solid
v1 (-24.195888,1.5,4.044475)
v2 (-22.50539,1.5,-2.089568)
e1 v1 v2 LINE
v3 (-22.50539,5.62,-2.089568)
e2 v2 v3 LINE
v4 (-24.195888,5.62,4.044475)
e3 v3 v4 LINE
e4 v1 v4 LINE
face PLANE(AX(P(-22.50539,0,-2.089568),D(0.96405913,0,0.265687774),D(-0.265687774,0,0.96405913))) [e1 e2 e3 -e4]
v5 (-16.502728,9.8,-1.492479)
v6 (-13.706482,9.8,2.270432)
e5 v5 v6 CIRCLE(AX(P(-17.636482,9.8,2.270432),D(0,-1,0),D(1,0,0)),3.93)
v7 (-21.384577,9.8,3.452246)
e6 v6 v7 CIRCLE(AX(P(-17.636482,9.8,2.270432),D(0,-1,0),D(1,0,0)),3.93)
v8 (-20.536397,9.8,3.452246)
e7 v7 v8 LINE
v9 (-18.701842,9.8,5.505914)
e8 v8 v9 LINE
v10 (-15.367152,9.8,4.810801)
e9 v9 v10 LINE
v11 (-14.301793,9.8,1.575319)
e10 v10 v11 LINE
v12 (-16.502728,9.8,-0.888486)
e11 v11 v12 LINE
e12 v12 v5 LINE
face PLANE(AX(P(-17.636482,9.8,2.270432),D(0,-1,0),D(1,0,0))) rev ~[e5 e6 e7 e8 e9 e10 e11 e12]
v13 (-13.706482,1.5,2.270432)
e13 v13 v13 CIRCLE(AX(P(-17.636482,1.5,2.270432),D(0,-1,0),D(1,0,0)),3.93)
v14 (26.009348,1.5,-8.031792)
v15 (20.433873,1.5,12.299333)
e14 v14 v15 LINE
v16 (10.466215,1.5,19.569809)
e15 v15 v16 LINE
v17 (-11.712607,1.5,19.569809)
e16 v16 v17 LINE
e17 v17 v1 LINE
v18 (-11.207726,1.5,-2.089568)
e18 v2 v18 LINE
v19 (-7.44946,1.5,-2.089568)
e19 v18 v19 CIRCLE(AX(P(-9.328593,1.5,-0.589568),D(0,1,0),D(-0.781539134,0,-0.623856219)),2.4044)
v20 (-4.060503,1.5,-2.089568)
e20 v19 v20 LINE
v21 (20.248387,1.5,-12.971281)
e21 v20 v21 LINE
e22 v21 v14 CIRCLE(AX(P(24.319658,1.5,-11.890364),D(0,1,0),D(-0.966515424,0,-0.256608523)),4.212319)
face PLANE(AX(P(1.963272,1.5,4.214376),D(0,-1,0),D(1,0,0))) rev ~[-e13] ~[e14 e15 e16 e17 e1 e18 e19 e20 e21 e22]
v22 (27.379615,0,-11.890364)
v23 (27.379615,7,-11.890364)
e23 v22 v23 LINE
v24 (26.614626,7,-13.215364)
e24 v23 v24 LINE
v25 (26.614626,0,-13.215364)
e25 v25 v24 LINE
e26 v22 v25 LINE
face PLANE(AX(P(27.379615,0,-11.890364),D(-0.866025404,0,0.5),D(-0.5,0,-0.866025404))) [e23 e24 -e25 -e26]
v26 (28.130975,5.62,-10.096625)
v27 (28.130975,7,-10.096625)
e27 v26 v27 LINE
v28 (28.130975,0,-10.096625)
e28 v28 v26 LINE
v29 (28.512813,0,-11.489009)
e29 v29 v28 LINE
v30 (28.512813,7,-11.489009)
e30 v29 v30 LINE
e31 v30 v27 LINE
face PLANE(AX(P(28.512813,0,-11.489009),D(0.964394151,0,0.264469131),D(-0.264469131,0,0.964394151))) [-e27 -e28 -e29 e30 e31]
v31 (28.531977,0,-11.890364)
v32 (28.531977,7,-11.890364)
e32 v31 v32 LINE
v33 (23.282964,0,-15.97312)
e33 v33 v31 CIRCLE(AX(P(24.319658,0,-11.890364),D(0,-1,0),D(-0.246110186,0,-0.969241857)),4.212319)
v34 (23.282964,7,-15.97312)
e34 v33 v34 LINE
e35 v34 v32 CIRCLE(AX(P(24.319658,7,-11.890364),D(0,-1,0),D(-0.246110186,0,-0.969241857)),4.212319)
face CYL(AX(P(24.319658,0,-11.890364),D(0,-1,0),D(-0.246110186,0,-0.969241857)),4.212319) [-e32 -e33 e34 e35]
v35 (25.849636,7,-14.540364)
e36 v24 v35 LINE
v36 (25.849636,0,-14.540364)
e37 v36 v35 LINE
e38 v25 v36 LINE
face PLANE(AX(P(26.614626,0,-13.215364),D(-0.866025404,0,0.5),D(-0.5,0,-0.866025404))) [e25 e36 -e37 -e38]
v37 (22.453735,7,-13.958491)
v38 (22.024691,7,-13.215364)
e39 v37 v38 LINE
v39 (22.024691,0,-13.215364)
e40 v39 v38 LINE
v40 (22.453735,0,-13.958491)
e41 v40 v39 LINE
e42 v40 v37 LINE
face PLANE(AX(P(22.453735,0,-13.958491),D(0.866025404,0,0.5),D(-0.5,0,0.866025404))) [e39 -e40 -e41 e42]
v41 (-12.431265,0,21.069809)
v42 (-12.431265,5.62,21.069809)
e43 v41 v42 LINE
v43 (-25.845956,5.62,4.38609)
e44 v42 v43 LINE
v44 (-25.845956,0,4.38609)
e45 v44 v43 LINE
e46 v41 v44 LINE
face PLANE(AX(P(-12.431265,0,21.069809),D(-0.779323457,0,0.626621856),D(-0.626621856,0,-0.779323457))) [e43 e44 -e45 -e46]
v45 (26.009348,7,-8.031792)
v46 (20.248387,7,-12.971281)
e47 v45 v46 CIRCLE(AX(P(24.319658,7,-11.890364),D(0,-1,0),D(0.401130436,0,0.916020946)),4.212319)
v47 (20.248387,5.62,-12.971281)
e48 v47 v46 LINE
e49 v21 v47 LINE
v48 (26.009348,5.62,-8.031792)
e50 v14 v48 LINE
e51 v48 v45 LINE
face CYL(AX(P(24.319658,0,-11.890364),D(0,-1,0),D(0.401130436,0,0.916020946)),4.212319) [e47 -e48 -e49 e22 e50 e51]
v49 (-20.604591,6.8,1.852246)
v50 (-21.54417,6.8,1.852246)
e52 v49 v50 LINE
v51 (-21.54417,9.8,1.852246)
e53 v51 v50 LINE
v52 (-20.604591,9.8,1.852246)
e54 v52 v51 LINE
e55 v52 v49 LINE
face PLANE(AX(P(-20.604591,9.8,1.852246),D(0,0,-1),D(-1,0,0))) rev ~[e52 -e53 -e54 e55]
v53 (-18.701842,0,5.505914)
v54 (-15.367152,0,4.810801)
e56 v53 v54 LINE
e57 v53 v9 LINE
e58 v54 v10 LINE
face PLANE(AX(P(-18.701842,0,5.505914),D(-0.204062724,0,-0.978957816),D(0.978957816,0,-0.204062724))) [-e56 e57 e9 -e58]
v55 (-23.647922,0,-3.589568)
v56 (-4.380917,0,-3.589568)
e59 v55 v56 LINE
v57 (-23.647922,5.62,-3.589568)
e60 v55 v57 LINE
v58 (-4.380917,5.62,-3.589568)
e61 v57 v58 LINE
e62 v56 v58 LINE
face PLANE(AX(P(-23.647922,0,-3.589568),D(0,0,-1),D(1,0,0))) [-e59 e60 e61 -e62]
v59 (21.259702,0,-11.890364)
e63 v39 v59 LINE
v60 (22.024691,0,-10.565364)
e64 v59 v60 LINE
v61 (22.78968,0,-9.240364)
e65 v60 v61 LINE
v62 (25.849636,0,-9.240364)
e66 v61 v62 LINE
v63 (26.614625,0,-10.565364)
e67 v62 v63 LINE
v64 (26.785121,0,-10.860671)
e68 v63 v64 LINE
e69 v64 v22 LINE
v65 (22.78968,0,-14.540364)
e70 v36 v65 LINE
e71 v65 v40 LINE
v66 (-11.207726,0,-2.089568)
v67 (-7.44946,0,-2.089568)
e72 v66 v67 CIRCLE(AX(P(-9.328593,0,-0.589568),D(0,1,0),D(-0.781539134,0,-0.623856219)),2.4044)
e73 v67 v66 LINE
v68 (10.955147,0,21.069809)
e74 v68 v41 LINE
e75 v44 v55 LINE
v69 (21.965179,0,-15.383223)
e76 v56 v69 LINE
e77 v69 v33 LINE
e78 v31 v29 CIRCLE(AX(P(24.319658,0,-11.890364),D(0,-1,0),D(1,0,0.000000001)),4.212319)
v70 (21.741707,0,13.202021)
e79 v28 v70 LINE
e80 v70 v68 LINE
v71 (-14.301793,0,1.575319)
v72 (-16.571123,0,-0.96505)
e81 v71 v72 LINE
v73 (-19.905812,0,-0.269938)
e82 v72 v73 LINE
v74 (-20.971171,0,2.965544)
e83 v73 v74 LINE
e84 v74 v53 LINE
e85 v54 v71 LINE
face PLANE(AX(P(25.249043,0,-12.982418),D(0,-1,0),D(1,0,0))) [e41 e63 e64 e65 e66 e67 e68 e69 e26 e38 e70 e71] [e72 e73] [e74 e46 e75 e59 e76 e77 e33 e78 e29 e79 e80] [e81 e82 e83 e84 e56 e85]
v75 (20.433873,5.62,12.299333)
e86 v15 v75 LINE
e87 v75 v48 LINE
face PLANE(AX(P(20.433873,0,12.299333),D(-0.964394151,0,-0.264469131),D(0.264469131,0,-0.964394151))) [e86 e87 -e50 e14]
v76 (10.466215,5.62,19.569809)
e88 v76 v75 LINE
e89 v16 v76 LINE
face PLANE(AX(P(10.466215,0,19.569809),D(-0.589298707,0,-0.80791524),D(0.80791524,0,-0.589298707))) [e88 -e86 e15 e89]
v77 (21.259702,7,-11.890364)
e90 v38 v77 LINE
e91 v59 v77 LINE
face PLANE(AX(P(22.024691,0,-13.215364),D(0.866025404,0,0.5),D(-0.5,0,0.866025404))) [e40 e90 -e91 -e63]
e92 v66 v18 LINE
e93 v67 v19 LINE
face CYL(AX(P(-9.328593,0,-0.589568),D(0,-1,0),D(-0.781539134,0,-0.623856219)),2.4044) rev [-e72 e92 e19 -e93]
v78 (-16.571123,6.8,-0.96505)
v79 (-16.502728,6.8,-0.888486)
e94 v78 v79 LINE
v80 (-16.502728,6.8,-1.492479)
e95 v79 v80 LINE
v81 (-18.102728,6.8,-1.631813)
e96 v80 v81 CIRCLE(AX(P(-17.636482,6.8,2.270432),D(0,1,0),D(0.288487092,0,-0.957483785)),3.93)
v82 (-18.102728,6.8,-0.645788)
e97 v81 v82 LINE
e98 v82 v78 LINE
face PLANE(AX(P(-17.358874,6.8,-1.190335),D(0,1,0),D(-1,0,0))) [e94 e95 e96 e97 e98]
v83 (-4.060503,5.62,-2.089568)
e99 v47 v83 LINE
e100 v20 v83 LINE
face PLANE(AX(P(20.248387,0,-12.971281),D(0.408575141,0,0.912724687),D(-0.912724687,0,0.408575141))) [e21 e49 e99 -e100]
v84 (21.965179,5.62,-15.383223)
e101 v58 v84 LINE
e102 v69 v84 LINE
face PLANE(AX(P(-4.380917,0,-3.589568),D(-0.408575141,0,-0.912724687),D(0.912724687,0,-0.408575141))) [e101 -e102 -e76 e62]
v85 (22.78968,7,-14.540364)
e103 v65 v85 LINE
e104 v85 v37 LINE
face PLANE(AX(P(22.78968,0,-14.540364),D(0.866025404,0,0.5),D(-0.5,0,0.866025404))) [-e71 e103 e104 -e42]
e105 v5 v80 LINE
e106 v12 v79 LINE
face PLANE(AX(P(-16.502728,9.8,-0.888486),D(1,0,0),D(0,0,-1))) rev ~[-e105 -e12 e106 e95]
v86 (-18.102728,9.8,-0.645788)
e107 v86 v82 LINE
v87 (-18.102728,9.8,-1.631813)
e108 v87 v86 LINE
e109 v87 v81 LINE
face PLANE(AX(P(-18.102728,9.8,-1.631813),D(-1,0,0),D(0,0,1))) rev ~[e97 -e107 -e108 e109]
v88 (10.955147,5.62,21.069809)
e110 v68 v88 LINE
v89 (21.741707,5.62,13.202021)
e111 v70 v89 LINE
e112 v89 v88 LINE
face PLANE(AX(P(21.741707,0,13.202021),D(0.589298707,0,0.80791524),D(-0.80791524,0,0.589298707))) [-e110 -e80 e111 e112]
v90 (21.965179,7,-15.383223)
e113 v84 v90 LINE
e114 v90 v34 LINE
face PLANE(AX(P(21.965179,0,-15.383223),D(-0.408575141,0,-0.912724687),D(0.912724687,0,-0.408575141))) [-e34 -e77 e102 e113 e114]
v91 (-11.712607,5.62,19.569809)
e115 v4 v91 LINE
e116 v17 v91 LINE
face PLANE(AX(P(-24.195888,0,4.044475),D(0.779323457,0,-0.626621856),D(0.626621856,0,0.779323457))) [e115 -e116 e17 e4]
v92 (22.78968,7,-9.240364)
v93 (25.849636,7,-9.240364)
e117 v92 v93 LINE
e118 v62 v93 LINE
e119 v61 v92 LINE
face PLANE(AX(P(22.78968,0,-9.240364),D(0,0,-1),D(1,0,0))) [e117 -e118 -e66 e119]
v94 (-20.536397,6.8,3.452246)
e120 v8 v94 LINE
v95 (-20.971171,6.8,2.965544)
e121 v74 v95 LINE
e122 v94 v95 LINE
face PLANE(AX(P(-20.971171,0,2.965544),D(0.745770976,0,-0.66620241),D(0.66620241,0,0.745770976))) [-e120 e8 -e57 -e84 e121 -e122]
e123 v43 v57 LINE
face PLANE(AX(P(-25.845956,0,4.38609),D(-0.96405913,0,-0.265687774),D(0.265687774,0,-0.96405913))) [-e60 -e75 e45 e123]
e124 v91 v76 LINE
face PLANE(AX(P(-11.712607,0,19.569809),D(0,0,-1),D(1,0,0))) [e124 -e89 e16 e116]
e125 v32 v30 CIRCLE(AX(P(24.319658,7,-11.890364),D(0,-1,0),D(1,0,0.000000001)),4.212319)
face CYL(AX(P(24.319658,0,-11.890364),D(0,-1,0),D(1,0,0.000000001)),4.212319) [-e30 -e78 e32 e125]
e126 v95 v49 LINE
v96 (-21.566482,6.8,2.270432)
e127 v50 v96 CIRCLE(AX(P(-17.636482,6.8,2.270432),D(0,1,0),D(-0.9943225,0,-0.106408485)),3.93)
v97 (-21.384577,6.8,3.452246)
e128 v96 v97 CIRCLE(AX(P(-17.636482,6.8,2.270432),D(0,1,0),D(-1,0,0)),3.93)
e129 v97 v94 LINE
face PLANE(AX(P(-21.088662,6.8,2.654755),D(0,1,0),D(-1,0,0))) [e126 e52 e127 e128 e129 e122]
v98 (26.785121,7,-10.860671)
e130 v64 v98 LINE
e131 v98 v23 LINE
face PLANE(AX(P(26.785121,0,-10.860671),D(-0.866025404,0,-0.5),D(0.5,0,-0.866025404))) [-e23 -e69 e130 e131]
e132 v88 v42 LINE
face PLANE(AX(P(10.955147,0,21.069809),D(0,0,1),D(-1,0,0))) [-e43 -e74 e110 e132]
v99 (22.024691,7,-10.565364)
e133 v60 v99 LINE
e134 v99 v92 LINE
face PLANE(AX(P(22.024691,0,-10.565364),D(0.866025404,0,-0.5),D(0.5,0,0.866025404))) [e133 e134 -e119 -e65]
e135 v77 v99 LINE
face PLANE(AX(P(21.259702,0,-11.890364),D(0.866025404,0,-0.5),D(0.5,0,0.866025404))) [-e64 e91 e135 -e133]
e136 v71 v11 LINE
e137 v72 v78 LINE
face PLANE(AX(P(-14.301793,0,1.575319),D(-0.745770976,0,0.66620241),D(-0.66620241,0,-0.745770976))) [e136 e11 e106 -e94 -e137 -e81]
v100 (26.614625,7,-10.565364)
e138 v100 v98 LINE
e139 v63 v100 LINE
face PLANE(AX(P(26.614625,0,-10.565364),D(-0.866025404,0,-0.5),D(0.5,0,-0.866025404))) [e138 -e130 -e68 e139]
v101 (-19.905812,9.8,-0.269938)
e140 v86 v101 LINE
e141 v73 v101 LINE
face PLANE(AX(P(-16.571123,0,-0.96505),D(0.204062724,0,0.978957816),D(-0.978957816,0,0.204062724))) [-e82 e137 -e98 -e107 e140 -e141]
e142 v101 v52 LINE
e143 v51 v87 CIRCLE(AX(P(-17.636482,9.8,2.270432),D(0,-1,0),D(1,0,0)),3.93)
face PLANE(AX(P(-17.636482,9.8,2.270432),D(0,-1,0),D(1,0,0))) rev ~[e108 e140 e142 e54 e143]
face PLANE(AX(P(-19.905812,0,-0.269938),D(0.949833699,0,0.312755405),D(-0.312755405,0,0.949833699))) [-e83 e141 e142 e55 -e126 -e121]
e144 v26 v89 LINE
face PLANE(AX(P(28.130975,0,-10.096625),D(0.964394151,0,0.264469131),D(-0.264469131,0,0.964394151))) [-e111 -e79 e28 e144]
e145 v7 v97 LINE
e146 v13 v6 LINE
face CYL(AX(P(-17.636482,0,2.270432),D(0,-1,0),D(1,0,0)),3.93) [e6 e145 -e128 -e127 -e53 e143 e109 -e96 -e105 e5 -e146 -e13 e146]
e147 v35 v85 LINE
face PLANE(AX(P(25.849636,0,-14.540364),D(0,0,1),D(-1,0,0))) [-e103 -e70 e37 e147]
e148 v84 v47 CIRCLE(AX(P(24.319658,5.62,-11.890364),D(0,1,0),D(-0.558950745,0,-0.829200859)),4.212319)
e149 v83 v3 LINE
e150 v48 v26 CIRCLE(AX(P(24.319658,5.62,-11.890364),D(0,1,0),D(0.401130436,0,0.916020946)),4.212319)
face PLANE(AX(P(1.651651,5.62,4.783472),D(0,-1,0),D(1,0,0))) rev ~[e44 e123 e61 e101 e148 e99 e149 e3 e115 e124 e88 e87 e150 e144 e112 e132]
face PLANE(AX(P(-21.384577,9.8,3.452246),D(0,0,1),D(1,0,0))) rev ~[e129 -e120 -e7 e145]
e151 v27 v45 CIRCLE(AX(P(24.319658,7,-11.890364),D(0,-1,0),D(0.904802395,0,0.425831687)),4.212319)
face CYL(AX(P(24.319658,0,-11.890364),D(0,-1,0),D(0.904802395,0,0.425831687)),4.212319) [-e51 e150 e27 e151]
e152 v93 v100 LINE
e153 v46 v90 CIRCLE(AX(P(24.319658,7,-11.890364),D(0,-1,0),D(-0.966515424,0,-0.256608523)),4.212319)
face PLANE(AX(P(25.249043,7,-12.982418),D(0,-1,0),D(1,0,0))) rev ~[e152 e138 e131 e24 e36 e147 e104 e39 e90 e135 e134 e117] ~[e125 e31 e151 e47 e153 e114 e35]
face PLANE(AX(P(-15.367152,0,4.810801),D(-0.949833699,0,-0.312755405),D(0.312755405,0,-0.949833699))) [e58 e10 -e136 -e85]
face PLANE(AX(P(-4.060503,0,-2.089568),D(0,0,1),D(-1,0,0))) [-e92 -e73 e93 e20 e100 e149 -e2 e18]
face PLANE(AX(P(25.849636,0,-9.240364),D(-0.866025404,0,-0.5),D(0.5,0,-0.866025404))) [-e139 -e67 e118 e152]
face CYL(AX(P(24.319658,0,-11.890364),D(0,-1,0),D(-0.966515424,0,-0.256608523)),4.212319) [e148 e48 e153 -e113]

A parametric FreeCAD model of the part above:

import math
import FreeCAD as App
import Part
import Sketcher
Q = App.Units.Quantity

doc = App.newDocument("Part")
body = doc.addObject("PartDesign::Body", "Body")

# Sketch on XZ plane
sketch1 = body.newObject("Sketcher::SketchObject", "Sketch")
sketch1.AttachmentSupport = (doc.getObject("XZ_Plane"), [""])
sketch1.MapMode = "FlatFace"
sketch1.addGeometry(Part.LineSegment(App.Vector(-22.5, -2.1, 0), App.Vector(-11.2, -2.1, 0)), False)
sketch1.addGeometry(Part.ArcOfCircle(Part.Circle(App.Vector(-9.3, -0.6, 0), App.Vector(0, 0, 1), 2.4), math.radians(-39), math.radians(219)), False)
sketch1.addGeometry(Part.LineSegment(App.Vector(-7.4, -2.1, 0), App.Vector(-4.1, -2.1, 0)), False)
sketch1.addGeometry(Part.LineSegment(App.Vector(-4.1, -2.1, 0), App.Vector(20.2, -13, 0)), False)
sketch1.addGeometry(Part.ArcOfCircle(Part.Circle(App.Vector(24.3, -11.9, 0), App.Vector(0, 0, 1), 4.2), math.radians(66), math.radians(195)), False)
sketch1.addGeometry(Part.LineSegment(App.Vector(26, -8, 0), App.Vector(20.4, 12.3, 0)), False)
sketch1.addGeometry(Part.LineSegment(App.Vector(20.4, 12.3, 0), App.Vector(10.5, 19.6, 0)), False)
sketch1.addGeometry(Part.LineSegment(App.Vector(10.5, 19.6, 0), App.Vector(-11.7, 19.6, 0)), False)
sketch1.addGeometry(Part.LineSegment(App.Vector(-11.7, 19.6, 0), App.Vector(-24.2, 4, 0)), False)
sketch1.addGeometry(Part.LineSegment(App.Vector(-24.2, 4, 0), App.Vector(-22.5, -2.1, 0)), False)
sketch1.addGeometry(Part.Circle(App.Vector(-17.6, 2.3, 0), App.Vector(0, 0, 1), 3.9), False)
sketch1.addConstraint(Sketcher.Constraint("Coincident", 0, 2, 1, 2))
sketch1.addConstraint(Sketcher.Constraint("Coincident", 1, 1, 2, 1))
sketch1.addConstraint(Sketcher.Constraint("Coincident", 2, 2, 3, 1))
sketch1.addConstraint(Sketcher.Constraint("Coincident", 3, 2, 4, 2))
sketch1.addConstraint(Sketcher.Constraint("Coincident", 4, 1, 5, 1))
sketch1.addConstraint(Sketcher.Constraint("Coincident", 5, 2, 6, 1))
sketch1.addConstraint(Sketcher.Constraint("Coincident", 6, 2, 7, 1))
sketch1.addConstraint(Sketcher.Constraint("Coincident", 7, 2, 8, 1))
sketch1.addConstraint(Sketcher.Constraint("Coincident", 8, 2, 9, 1))
sketch1.addConstraint(Sketcher.Constraint("Coincident", 9, 2, 0, 1))
sketch1.addConstraint(Sketcher.Constraint("Horizontal", 0))
sketch1.addConstraint(Sketcher.Constraint("Horizontal", 2))
sketch1.addConstraint(Sketcher.Constraint("Horizontal", 7))
sketch1.addConstraint(Sketcher.Constraint("Horizontal", 0, 2, 1, 1))
sketch1.addConstraint(Sketcher.Constraint("Diameter", 10, Q("7.86 mm")))
sketch1.addConstraint(Sketcher.Constraint("Radius", 1, Q("2.4044 mm")))
sketch1.addConstraint(Sketcher.Constraint("DistanceY", 0, 2, 1, 3, Q("1.5 mm")))
sketch1.addConstraint(Sketcher.Constraint("Radius", 4, Q("4.212319 mm")))
sketch1.addConstraint(Sketcher.Constraint("DistanceY", 1, 3, 10, 3, Q("2.86 mm")))
sketch1.addConstraint(Sketcher.Constraint("DistanceY", 2, 2, 5, 2, Q("14.388902 mm")))
sketch1.addConstraint(Sketcher.Constraint("DistanceX", 8, 2, 9, 2, Q("1.690498 mm")))
sketch1.addConstraint(Sketcher.Constraint("Distance", 3, Q("26.633321 mm")))
sketch1.addConstraint(Sketcher.Constraint("Distance", 5, Q("21.081759 mm")))
sketch1.addConstraint(Sketcher.Constraint("DistanceX", 0, 1, 0, 2, Q("11.297664 mm")))
sketch1.addConstraint(Sketcher.Constraint("DistanceX", 2, 1, 2, 2, Q("3.388957 mm")))
sketch1.addConstraint(Sketcher.Constraint("DistanceX", 7, 2, 7, 1, Q("22.178822 mm")))
sketch1.addConstraint(Sketcher.Constraint("DistanceY", 1, 3, -1, 1, Q("0.589568 mm")))
sketch1.addConstraint(Sketcher.Constraint("DistanceX", -1, 1, 4, 3, Q("24.319658 mm")))
sketch1.addConstraint(Sketcher.Constraint("DistanceX", 1, 1, -1, 1, Q("7.44946 mm")))
sketch1.addConstraint(Sketcher.Constraint("DistanceY", 3, 2, -1, 1, Q("12.971281 mm")))
sketch1.addConstraint(Sketcher.Constraint("DistanceY", 4, 1, -1, 1, Q("8.031792 mm")))
sketch1.addConstraint(Sketcher.Constraint("DistanceY", -1, 1, 6, 2, Q("19.569809 mm")))
sketch1.addConstraint(Sketcher.Constraint("DistanceX", 10, 3, 1, 3, Q("8.307889 mm")))
sketch1.addConstraint(Sketcher.Constraint("DistanceX", 6, 2, 5, 2, Q("9.967658 mm")))
sketch1.addConstraint(Sketcher.Constraint("Distance", 8, Q("19.921554 mm")))
pad1 = body.newObject("PartDesign::Pad", "Pad")
pad1.Profile = sketch1
pad1.Length = 1.5
pad1.Reversed = True

# Sketch on XZ plane
sketch2 = body.newObject("Sketcher::SketchObject", "Sketch001")
sketch2.AttachmentSupport = (doc.getObject("XZ_Plane"), [""])
sketch2.MapMode = "FlatFace"
sketch2.addGeometry(Part.LineSegment(App.Vector(-22.50539, -2.089568, 0), App.Vector(-24.195888, 4.044475, 0)), False)
sketch2.addGeometry(Part.LineSegment(App.Vector(-24.195888, 4.044475, 0), App.Vector(-11.712607, 19.569809, 0)), False)
sketch2.addGeometry(Part.LineSegment(App.Vector(-11.712607, 19.569809, 0), App.Vector(10.466215, 19.569809, 0)), False)
sketch2.addGeometry(Part.LineSegment(App.Vector(10.466215, 19.569809, 0), App.Vector(20.433873, 12.299333, 0)), False)
sketch2.addGeometry(Part.LineSegment(App.Vector(20.433873, 12.299333, 0), App.Vector(26.009348, -8.031792, 0)), False)
sketch2.addGeometry(Part.ArcOfCircle(Part.Circle(App.Vector(24.319658, -11.890364, 0), App.Vector(0, 0, 1), 4.212319), math.radians(25.203318), math.radians(66.351133)), False)
sketch2.addGeometry(Part.LineSegment(App.Vector(28.130975, -10.096625, 0), App.Vector(21.741707, 13.202021, 0)), False)
sketch2.addGeometry(Part.LineSegment(App.Vector(21.741707, 13.202021, 0), App.Vector(10.955147, 21.069809, 0)), False)
sketch2.addGeometry(Part.LineSegment(App.Vector(10.955147, 21.069809, 0), App.Vector(-12.431266, 21.069809, 0)), False)
sketch2.addGeometry(Part.LineSegment(App.Vector(-12.431266, 21.069809, 0), App.Vector(-25.845956, 4.38609, 0)), False)
sketch2.addGeometry(Part.LineSegment(App.Vector(-25.845956, 4.38609, 0), App.Vector(-23.647922, -3.589568, 0)), False)
sketch2.addGeometry(Part.LineSegment(App.Vector(-23.647922, -3.589568, 0), App.Vector(-4.380917, -3.589568, 0)), False)
sketch2.addGeometry(Part.LineSegment(App.Vector(-4.380917, -3.589568, 0), App.Vector(21.965179, -15.383223, 0)), False)
sketch2.addGeometry(Part.ArcOfCircle(Part.Circle(App.Vector(24.319658, -11.890364, 0), App.Vector(0, 0, 1), 4.212319), math.radians(-165.131081), math.radians(-123.983266)), False)
sketch2.addGeometry(Part.LineSegment(App.Vector(20.248387, -12.971281, 0), App.Vector(-4.060503, -2.089568, 0)), False)
sketch2.addGeometry(Part.LineSegment(App.Vector(-4.060503, -2.089568, 0), App.Vector(-22.50539, -2.089568, 0)), False)
sketch2.addConstraint(Sketcher.Constraint("Coincident", 0, 2, 1, 1))
sketch2.addConstraint(Sketcher.Constraint("Coincident", 1, 2, 2, 1))
sketch2.addConstraint(Sketcher.Constraint("Coincident", 2, 2, 3, 1))
sketch2.addConstraint(Sketcher.Constraint("Coincident", 3, 2, 4, 1))
sketch2.addConstraint(Sketcher.Constraint("Coincident", 4, 2, 5, 2))
sketch2.addConstraint(Sketcher.Constraint("Coincident", 5, 1, 6, 1))
sketch2.addConstraint(Sketcher.Constraint("Coincident", 6, 2, 7, 1))
sketch2.addConstraint(Sketcher.Constraint("Coincident", 7, 2, 8, 1))
sketch2.addConstraint(Sketcher.Constraint("Coincident", 8, 2, 9, 1))
sketch2.addConstraint(Sketcher.Constraint("Coincident", 9, 2, 10, 1))
sketch2.addConstraint(Sketcher.Constraint("Coincident", 10, 2, 11, 1))
sketch2.addConstraint(Sketcher.Constraint("Coincident", 11, 2, 12, 1))
sketch2.addConstraint(Sketcher.Constraint("Coincident", 12, 2, 13, 2))
sketch2.addConstraint(Sketcher.Constraint("Coincident", 13, 1, 14, 1))
sketch2.addConstraint(Sketcher.Constraint("Coincident", 14, 2, 15, 1))
sketch2.addConstraint(Sketcher.Constraint("Coincident", 15, 2, 0, 1))
sketch2.addConstraint(Sketcher.Constraint("Horizontal", 2))
sketch2.addConstraint(Sketcher.Constraint("Horizontal", 8))
sketch2.addConstraint(Sketcher.Constraint("Horizontal", 11))
sketch2.addConstraint(Sketcher.Constraint("Horizontal", 15))
sketch2.addConstraint(Sketcher.Constraint("Coincident", 13, 3, 5, 3))
sketch2.addConstraint(Sketcher.Constraint("DistanceY", 2, 2, 7, 2, Q("1.5 mm")))
sketch2.addConstraint(Sketcher.Constraint("DistanceY", 11, 2, 14, 2, Q("1.5 mm")))
sketch2.addConstraint(Sketcher.Constraint("Radius", 5, Q("4.212319 mm")))
sketch2.addConstraint(Sketcher.Constraint("Radius", 13, Q("4.212319 mm")))
sketch2.addConstraint(Sketcher.Constraint("DistanceY", 4, 2, 2, 2, Q("27.601601 mm")))
sketch2.addConstraint(Sketcher.Constraint("DistanceX", 3, 2, 5, 1, Q("7.697102 mm")))
sketch2.addConstraint(Sketcher.Constraint("DistanceX", 7, 2, 4, 2, Q("15.054201 mm")))
sketch2.addConstraint(Sketcher.Constraint("DistanceX", 0, 2, 15, 2, Q("1.690498 mm")))
sketch2.addConstraint(Sketcher.Constraint("Distance", 4, Q("21.081759 mm")))
sketch2.addConstraint(Sketcher.Constraint("Distance", 9, Q("21.407952 mm")))
sketch2.addConstraint(Sketcher.Constraint("Distance", 14, Q("26.633321 mm")))
sketch2.addConstraint(Sketcher.Constraint("DistanceX", 2, 1, 2, 2, Q("22.178822 mm")))
sketch2.addConstraint(Sketcher.Constraint("DistanceX", 8, 2, 8, 1, Q("23.386413 mm")))
sketch2.addConstraint(Sketcher.Constraint("DistanceX", 11, 1, 11, 2, Q("19.267005 mm")))
sketch2.addConstraint(Sketcher.Constraint("DistanceX", 15, 2, 15, 1, Q("18.444887 mm")))
sketch2.addConstraint(Sketcher.Constraint("DistanceX", -1, 1, 5, 3, Q("24.319658 mm")))
sketch2.addConstraint(Sketcher.Constraint("DistanceX", 0, 2, -1, 1, Q("24.195888 mm")))
sketch2.addConstraint(Sketcher.Constraint("DistanceY", -1, 1, 1, 2, Q("19.569809 mm")))
sketch2.addConstraint(Sketcher.Constraint("DistanceY", -1, 1, 6, 2, Q("13.202021 mm")))
sketch2.addConstraint(Sketcher.Constraint("DistanceY", -1, 1, 9, 2, Q("4.38609 mm")))
sketch2.addConstraint(Sketcher.Constraint("DistanceX", 10, 2, -1, 1, Q("23.647922 mm")))
sketch2.addConstraint(Sketcher.Constraint("DistanceY", 10, 2, -1, 1, Q("3.589568 mm")))
sketch2.addConstraint(Sketcher.Constraint("DistanceX", -1, 1, 12, 2, Q("21.965179 mm")))
sketch2.addConstraint(Sketcher.Constraint("DistanceY", 13, 1, -1, 1, Q("12.971281 mm")))
sketch2.addConstraint(Sketcher.Constraint("DistanceY", 5, 3, 0, 2, Q("15.934839 mm")))
sketch2.addConstraint(Sketcher.Constraint("DistanceX", 0, 2, 1, 2, Q("12.483281 mm")))
sketch2.addConstraint(Sketcher.Constraint("DistanceX", 2, 2, 3, 2, Q("9.967658 mm")))
sketch2.addConstraint(Sketcher.Constraint("DistanceX", 2, 2, 6, 2, Q("11.275492 mm")))
pad2 = body.newObject("PartDesign::Pad", "Pad001")
pad2.Profile = sketch2
pad2.Length = 5.62
pad2.Reversed = True

# Sketch on XZ plane
sketch3 = body.newObject("Sketcher::SketchObject", "Sketch002")
sketch3.AttachmentSupport = (doc.getObject("XZ_Plane"), [""])
sketch3.MapMode = "FlatFace"
sketch3.addGeometry(Part.Circle(App.Vector(-17.6, 2.3, 0), App.Vector(0, 0, 1), 3.9), False)
sketch3.addGeometry(Part.LineSegment(App.Vector(-14.3, 1.6, 0), App.Vector(-16.6, -1, 0)), False)
sketch3.addGeometry(Part.LineSegment(App.Vector(-16.6, -1, 0), App.Vector(-19.9, -0.3, 0)), False)
sketch3.addGeometry(Part.LineSegment(App.Vector(-19.9, -0.3, 0), App.Vector(-21, 3, 0)), False)
sketch3.addGeometry(Part.LineSegment(App.Vector(-21, 3, 0), App.Vector(-18.7, 5.5, 0)), False)
sketch3.addGeometry(Part.LineSegment(App.Vector(-18.7, 5.5, 0), App.Vector(-15.4, 4.8, 0)), False)
sketch3.addGeometry(Part.LineSegment(App.Vector(-15.4, 4.8, 0), App.Vector(-14.3, 1.6, 0)), False)
sketch3.addConstraint(Sketcher.Constraint("Coincident", 1, 2, 2, 1))
sketch3.addConstraint(Sketcher.Constraint("Coincident", 2, 2, 3, 1))
sketch3.addConstraint(Sketcher.Constraint("Coincident", 3, 2, 4, 1))
sketch3.addConstraint(Sketcher.Constraint("Coincident", 4, 2, 5, 1))
sketch3.addConstraint(Sketcher.Constraint("Coincident", 5, 2, 6, 1))
sketch3.addConstraint(Sketcher.Constraint("Coincident", 6, 2, 1, 1))
sketch3.addConstraint(Sketcher.Constraint("Parallel", 1, 4))
sketch3.addConstraint(Sketcher.Constraint("Parallel", 2, 5))
sketch3.addConstraint(Sketcher.Constraint("Parallel", 3, 6))
sketch3.addConstraint(Sketcher.Constraint("Equal", 1, 2))
sketch3.addConstraint(Sketcher.Constraint("Equal", 2, 3))
sketch3.addConstraint(Sketcher.Constraint("Equal", 3, 4))
sketch3.addConstraint(Sketcher.Constraint("Diameter", 0, Q("7.86 mm")))
sketch3.addConstraint(Sketcher.Constraint("DistanceY", -1, 1, 5, 2, Q("4.810801 mm")))
sketch3.addConstraint(Sketcher.Constraint("DistanceY", -1, 1, 0, 3, Q("2.270432 mm")))
sketch3.addConstraint(Sketcher.Constraint("DistanceY", 1, 2, -1, 1, Q("0.96505 mm")))
sketch3.addConstraint(Sketcher.Constraint("DistanceX", 2, 2, -1, 1, Q("19.905812 mm")))
sketch3.addConstraint(Sketcher.Constraint("DistanceX", 3, 2, -1, 1, Q("20.971171 mm")))
sketch3.addConstraint(Sketcher.Constraint("DistanceX", 4, 2, -1, 1, Q("18.701842 mm")))
sketch3.addConstraint(Sketcher.Constraint("DistanceX", 0, 3, 1, 2, Q("1.06536 mm")))
sketch3.addConstraint(Sketcher.Constraint("DistanceX", 2, 2, 1, 2, Q("3.334689 mm")))
pad3 = body.newObject("PartDesign::Pad", "Pad002")
pad3.Profile = sketch3
pad3.Length = 9.8
pad3.Reversed = True

# Sketch on XZ plane
sketch4 = body.newObject("Sketcher::SketchObject", "Sketch003")
sketch4.AttachmentSupport = (doc.getObject("XZ_Plane"), [""])
sketch4.MapMode = "FlatFace"
sketch4.addGeometry(Part.ArcOfCircle(Part.Circle(App.Vector(24.32, -11.89, 0), App.Vector(0, 0, 1), 4.21), math.radians(-165), math.radians(-124)), False)
sketch4.addGeometry(Part.LineSegment(App.Vector(21.97, -15.38, 0), App.Vector(23.28, -15.97, 0)), False)
sketch4.addGeometry(Part.ArcOfCircle(Part.Circle(App.Vector(24.32, -11.89, 0), App.Vector(0, 0, 1), 4.21), math.radians(-104), math.radians(0)), False)
sketch4.addGeometry(Part.ArcOfCircle(Part.Circle(App.Vector(24.32, -11.89, 0), App.Vector(0, 0, 1), 4.21), math.radians(0), math.radians(5.47)), False)
sketch4.addGeometry(Part.LineSegment(App.Vector(28.51, -11.49, 0), App.Vector(28.13, -10.1, 0)), False)
sketch4.addGeometry(Part.ArcOfCircle(Part.Circle(App.Vector(24.32, -11.89, 0), App.Vector(0, 0, 1), 4.21), math.radians(25), math.radians(66)), False)
sketch4.addGeometry(Part.ArcOfCircle(Part.Circle(App.Vector(24.32, -11.89, 0), App.Vector(0, 0, 1), 4.21), math.radians(66), math.radians(195)), False)
sketch4.addGeometry(Part.LineSegment(App.Vector(26.79, -10.86, 0), App.Vector(27.38, -11.89, 0)), False)
sketch4.addGeometry(Part.LineSegment(App.Vector(27.38, -11.89, 0), App.Vector(26.61, -13.22, 0)), False)
sketch4.addGeometry(Part.LineSegment(App.Vector(26.61, -13.22, 0), App.Vector(25.85, -14.54, 0)), False)
sketch4.addGeometry(Part.LineSegment(App.Vector(25.85, -14.54, 0), App.Vector(22.79, -14.54, 0)), False)
sketch4.addGeometry(Part.LineSegment(App.Vector(22.79, -14.54, 0), App.Vector(22.45, -13.96, 0)), False)
sketch4.addGeometry(Part.LineSegment(App.Vector(22.45, -13.96, 0), App.Vector(22.02, -13.22, 0)), False)
sketch4.addGeometry(Part.LineSegment(App.Vector(22.02, -13.22, 0), App.Vector(21.26, -11.89, 0)), False)
sketch4.addGeometry(Part.LineSegment(App.Vector(21.26, -11.89, 0), App.Vector(22.02, -10.57, 0)), False)
sketch4.addGeometry(Part.LineSegment(App.Vector(22.02, -10.57, 0), App.Vector(22.79, -9.24, 0)), False)
sketch4.addGeometry(Part.LineSegment(App.Vector(22.79, -9.24, 0), App.Vector(25.85, -9.24, 0)), False)
sketch4.addGeometry(Part.LineSegment(App.Vector(25.85, -9.24, 0), App.Vector(26.61, -10.57, 0)), False)
sketch4.addGeometry(Part.LineSegment(App.Vector(26.61, -10.57, 0), App.Vector(26.79, -10.86, 0)), False)
sketch4.addConstraint(Sketcher.Constraint("Coincident", 0, 2, 1, 1))
sketch4.addConstraint(Sketcher.Constraint("Coincident", 1, 2, 2, 1))
sketch4.addConstraint(Sketcher.Constraint("Tangent", 2, 2, 3, 1))
sketch4.addConstraint(Sketcher.Constraint("Coincident", 3, 2, 4, 1))
sketch4.addConstraint(Sketcher.Constraint("Coincident", 4, 2, 5, 1))
sketch4.addConstraint(Sketcher.Constraint("Tangent", 5, 2, 6, 1))
sketch4.addConstraint(Sketcher.Constraint("Tangent", 6, 2, 0, 1))
sketch4.addConstraint(Sketcher.Constraint("Coincident", 7, 2, 8, 1))
sketch4.addConstraint(Sketcher.Constraint("Coincident", 8, 2, 9, 1))
sketch4.addConstraint(Sketcher.Constraint("Coincident", 9, 2, 10, 1))
sketch4.addConstraint(Sketcher.Constraint("Coincident", 10, 2, 11, 1))
sketch4.addConstraint(Sketcher.Constraint("Coincident", 11, 2, 12, 1))
sketch4.addConstraint(Sketcher.Constraint("Coincident", 12, 2, 13, 1))
sketch4.addConstraint(Sketcher.Constraint("Coincident", 13, 2, 14, 1))
sketch4.addConstraint(Sketcher.Constraint("Coincident", 14, 2, 15, 1))
sketch4.addConstraint(Sketcher.Constraint("Coincident", 15, 2, 16, 1))
sketch4.addConstraint(Sketcher.Constraint("Coincident", 16, 2, 17, 1))
sketch4.addConstraint(Sketcher.Constraint("Coincident", 17, 2, 18, 1))
sketch4.addConstraint(Sketcher.Constraint("Coincident", 18, 2, 7, 1))
sketch4.addConstraint(Sketcher.Constraint("Horizontal", 10))
sketch4.addConstraint(Sketcher.Constraint("Horizontal", 16))
sketch4.addConstraint(Sketcher.Constraint("Coincident", 2, 3, 0, 3))
sketch4.addConstraint(Sketcher.Constraint("Coincident", 5, 3, 0, 3))
sketch4.addConstraint(Sketcher.Constraint("Equal", 0, 2))
sketch4.addConstraint(Sketcher.Constraint("Equal", 2, 3))
sketch4.addConstraint(Sketcher.Constraint("Parallel", 8, 9))
sketch4.addConstraint(Sketcher.Constraint("Parallel", 7, 11))
sketch4.addConstraint(Sketcher.Constraint("Parallel", 11, 12))
sketch4.addConstraint(Sketcher.Constraint("Parallel", 12, 13))
sketch4.addConstraint(Sketcher.Constraint("Parallel", 9, 14))
sketch4.addConstraint(Sketcher.Constraint("Parallel", 14, 15))
sketch4.addConstraint(Sketcher.Constraint("Parallel", 13, 17))
sketch4.addConstraint(Sketcher.Constraint("Parallel", 17, 18))
sketch4.addConstraint(Sketcher.Constraint("Horizontal", 6, 3, 2, 2))
sketch4.addConstraint(Sketcher.Constraint("Horizontal", 2, 2, 7, 2))
sketch4.addConstraint(Sketcher.Constraint("Horizontal", 8, 2, 12, 2))
sketch4.addConstraint(Sketcher.Constraint("Horizontal", 7, 2, 13, 2))
sketch4.addConstraint(Sketcher.Constraint("Horizontal", 14, 2, 17, 2))
sketch4.addConstraint(Sketcher.Constraint("Vertical", 12, 2, 14, 2))
sketch4.addConstraint(Sketcher.Constraint("Vertical", 10, 2, 15, 2))
sketch4.addConstraint(Sketcher.Constraint("Vertical", 9, 2, 16, 2))
sketch4.addConstraint(Sketcher.Constraint("Equal", 1, 4))
sketch4.addConstraint(Sketcher.Constraint("Equal", 8, 9))
sketch4.addConstraint(Sketcher.Constraint("Angle", 7, Q("-60 deg")))
sketch4.addConstraint(Sketcher.Constraint("Radius", 0, Q("4.212319 mm")))
sketch4.addConstraint(Sketcher.Constraint("DistanceY", 9, 2, 0, 3, Q("2.65 mm")))
sketch4.addConstraint(Sketcher.Constraint("DistanceX", -1, 1, 13, 2, Q("21.259702 mm")))
sketch4.addConstraint(Sketcher.Constraint("DistanceX", 7, 2, 3, 2, Q("1.133198 mm")))
sketch4.addConstraint(Sketcher.Constraint("DistanceX", 0, 2, 10, 2, Q("0.824501 mm")))
sketch4.addConstraint(Sketcher.Constraint("Distance", 1, Q("1.443792 mm")))
sketch4.addConstraint(Sketcher.Constraint("Distance", 11, Q("0.671889 mm")))
sketch4.addConstraint(Sketcher.Constraint("Distance", 18, Q("0.340991 mm")))
sketch4.addConstraint(Sketcher.Constraint("DistanceX", 10, 2, 10, 1, Q("3.059956 mm")))
sketch4.addConstraint(Sketcher.Constraint("DistanceX", -1, 1, 0, 3, Q("24.319658 mm")))
sketch4.addConstraint(Sketcher.Constraint("DistanceY", 1, 2, -1, 1, Q("15.97312 mm")))
sketch4.addConstraint(Sketcher.Constraint("DistanceY", 5, 2, -1, 1, Q("8.031792 mm")))
sketch4.addConstraint(Sketcher.Constraint("DistanceY", 6, 2, -1, 1, Q("12.971281 mm")))
pad4 = body.newObject("PartDesign::Pad", "Pad003")
pad4.Profile = sketch4
pad4.Length = 7
pad4.Reversed = True

# Sketch on XZ plane
sketch5 = body.newObject("Sketcher::SketchObject", "Sketch004")
sketch5.AttachmentSupport = (doc.getObject("XZ_Plane"), [""])
sketch5.MapMode = "FlatFace"
sketch5.AttachmentOffset = App.Placement(App.Vector(0, 0, -9.8), App.Rotation())
sketch5.addGeometry(Part.ArcOfCircle(Part.Circle(App.Vector(-17.64, 2.27, 0), App.Vector(0, 0, 1), 3.93), math.radians(-97), math.radians(-73)), False)
sketch5.addGeometry(Part.LineSegment(App.Vector(-18.1, -1.63, 0), App.Vector(-18.1, -0.65, 0)), False)
sketch5.addGeometry(Part.LineSegment(App.Vector(-18.1, -0.65, 0), App.Vector(-16.57, -0.97, 0)), False)
sketch5.addGeometry(Part.LineSegment(App.Vector(-16.57, -0.97, 0), App.Vector(-16.5, -0.89, 0)), False)
sketch5.addGeometry(Part.LineSegment(App.Vector(-16.5, -0.89, 0), App.Vector(-16.5, -1.49, 0)), False)
sketch5.addGeometry(Part.LineSegment(App.Vector(-20.97, 2.97, 0), App.Vector(-20.6, 1.85, 0)), False)
sketch5.addGeometry(Part.LineSegment(App.Vector(-20.6, 1.85, 0), App.Vector(-21.54, 1.85, 0)), False)
sketch5.addGeometry(Part.ArcOfCircle(Part.Circle(App.Vector(-17.64, 2.27, 0), App.Vector(0, 0, 1), 3.93), math.radians(180), math.radians(186.11)), False)
sketch5.addGeometry(Part.ArcOfCircle(Part.Circle(App.Vector(-17.64, 2.27, 0), App.Vector(0, 0, 1), 3.93), math.radians(162.5), math.radians(180)), False)
sketch5.addGeometry(Part.LineSegment(App.Vector(-21.38, 3.45, 0), App.Vector(-20.54, 3.45, 0)), False)
sketch5.addGeometry(Part.LineSegment(App.Vector(-20.54, 3.45, 0), App.Vector(-20.97, 2.97, 0)), False)
sketch5.addConstraint(Sketcher.Constraint("Coincident", 0, 1, 1, 1))
sketch5.addConstraint(Sketcher.Constraint("Coincident", 1, 2, 2, 1))
sketch5.addConstraint(Sketcher.Constraint("Coincident", 2, 2, 3, 1))
sketch5.addConstraint(Sketcher.Constraint("Coincident", 3, 2, 4, 1))
sketch5.addConstraint(Sketcher.Constraint("Coincident", 4, 2, 0, 2))
sketch5.addConstraint(Sketcher.Constraint("Coincident", 5, 2, 6, 1))
sketch5.addConstraint(Sketcher.Constraint("Coincident", 6, 2, 7, 2))
sketch5.addConstraint(Sketcher.Constraint("Tangent", 7, 1, 8, 2))
sketch5.addConstraint(Sketcher.Constraint("Coincident", 8, 1, 9, 1))
sketch5.addConstraint(Sketcher.Constraint("Coincident", 9, 2, 10, 1))
sketch5.addConstraint(Sketcher.Constraint("Coincident", 10, 2, 5, 1))
sketch5.addConstraint(Sketcher.Constraint("Vertical", 1))
sketch5.addConstraint(Sketcher.Constraint("Vertical", 4))
sketch5.addConstraint(Sketcher.Constraint("Horizontal", 6))
sketch5.addConstraint(Sketcher.Constraint("Horizontal", 9))
sketch5.addConstraint(Sketcher.Constraint("Coincident", 7, 3, 0, 3))
sketch5.addConstraint(Sketcher.Constraint("Equal", 0, 7))
sketch5.addConstraint(Sketcher.Constraint("Equal", 7, 8))
sketch5.addConstraint(Sketcher.Constraint("Parallel", 3, 10))
sketch5.addConstraint(Sketcher.Constraint("Horizontal", 8, 3, 7, 1))
sketch5.addConstraint(Sketcher.Constraint("Radius", 0, Q("3.93 mm")))
sketch5.addConstraint(Sketcher.Constraint("DistanceX", 1, 2, 3, 2, Q("1.6 mm")))
sketch5.addConstraint(Sketcher.Constraint("DistanceY", 6, 2, 8, 1, Q("1.6 mm")))
sketch5.addConstraint(Sketcher.Constraint("DistanceX", 6, 2, 10, 2, Q("0.572998 mm")))
sketch5.addConstraint(Sketcher.Constraint("DistanceX", 6, 2, 6, 1, Q("0.939578 mm")))
sketch5.addConstraint(Sketcher.Constraint("DistanceX", 9, 1, 9, 2, Q("0.84818 mm")))
sketch5.addConstraint(Sketcher.Constraint("DistanceY", 3, 2, 1, 2, Q("0.242698 mm")))
sketch5.addConstraint(Sketcher.Constraint("DistanceY", 1, 1, 1, 2, Q("0.986025 mm")))
sketch5.addConstraint(Sketcher.Constraint("DistanceY", 4, 2, 4, 1, Q("0.603993 mm")))
sketch5.addConstraint(Sketcher.Constraint("DistanceY", -1, 1, 0, 3, Q("2.270432 mm")))
sketch5.addConstraint(Sketcher.Constraint("DistanceY", 2, 2, -1, 1, Q("0.96505 mm")))
sketch5.addConstraint(Sketcher.Constraint("DistanceX", 5, 2, -1, 1, Q("20.604591 mm")))
sketch5.addConstraint(Sketcher.Constraint("DistanceX", 0, 3, 2, 2, Q("1.06536 mm")))
sketch5.addConstraint(Sketcher.Constraint("DistanceX", 5, 2, 7, 3, Q("2.968109 mm")))
pocket1 = body.newObject("PartDesign::Pocket", "Pocket")
pocket1.Profile = sketch5
pocket1.Length = 3
pocket1.Reversed = True

doc.recompute()
